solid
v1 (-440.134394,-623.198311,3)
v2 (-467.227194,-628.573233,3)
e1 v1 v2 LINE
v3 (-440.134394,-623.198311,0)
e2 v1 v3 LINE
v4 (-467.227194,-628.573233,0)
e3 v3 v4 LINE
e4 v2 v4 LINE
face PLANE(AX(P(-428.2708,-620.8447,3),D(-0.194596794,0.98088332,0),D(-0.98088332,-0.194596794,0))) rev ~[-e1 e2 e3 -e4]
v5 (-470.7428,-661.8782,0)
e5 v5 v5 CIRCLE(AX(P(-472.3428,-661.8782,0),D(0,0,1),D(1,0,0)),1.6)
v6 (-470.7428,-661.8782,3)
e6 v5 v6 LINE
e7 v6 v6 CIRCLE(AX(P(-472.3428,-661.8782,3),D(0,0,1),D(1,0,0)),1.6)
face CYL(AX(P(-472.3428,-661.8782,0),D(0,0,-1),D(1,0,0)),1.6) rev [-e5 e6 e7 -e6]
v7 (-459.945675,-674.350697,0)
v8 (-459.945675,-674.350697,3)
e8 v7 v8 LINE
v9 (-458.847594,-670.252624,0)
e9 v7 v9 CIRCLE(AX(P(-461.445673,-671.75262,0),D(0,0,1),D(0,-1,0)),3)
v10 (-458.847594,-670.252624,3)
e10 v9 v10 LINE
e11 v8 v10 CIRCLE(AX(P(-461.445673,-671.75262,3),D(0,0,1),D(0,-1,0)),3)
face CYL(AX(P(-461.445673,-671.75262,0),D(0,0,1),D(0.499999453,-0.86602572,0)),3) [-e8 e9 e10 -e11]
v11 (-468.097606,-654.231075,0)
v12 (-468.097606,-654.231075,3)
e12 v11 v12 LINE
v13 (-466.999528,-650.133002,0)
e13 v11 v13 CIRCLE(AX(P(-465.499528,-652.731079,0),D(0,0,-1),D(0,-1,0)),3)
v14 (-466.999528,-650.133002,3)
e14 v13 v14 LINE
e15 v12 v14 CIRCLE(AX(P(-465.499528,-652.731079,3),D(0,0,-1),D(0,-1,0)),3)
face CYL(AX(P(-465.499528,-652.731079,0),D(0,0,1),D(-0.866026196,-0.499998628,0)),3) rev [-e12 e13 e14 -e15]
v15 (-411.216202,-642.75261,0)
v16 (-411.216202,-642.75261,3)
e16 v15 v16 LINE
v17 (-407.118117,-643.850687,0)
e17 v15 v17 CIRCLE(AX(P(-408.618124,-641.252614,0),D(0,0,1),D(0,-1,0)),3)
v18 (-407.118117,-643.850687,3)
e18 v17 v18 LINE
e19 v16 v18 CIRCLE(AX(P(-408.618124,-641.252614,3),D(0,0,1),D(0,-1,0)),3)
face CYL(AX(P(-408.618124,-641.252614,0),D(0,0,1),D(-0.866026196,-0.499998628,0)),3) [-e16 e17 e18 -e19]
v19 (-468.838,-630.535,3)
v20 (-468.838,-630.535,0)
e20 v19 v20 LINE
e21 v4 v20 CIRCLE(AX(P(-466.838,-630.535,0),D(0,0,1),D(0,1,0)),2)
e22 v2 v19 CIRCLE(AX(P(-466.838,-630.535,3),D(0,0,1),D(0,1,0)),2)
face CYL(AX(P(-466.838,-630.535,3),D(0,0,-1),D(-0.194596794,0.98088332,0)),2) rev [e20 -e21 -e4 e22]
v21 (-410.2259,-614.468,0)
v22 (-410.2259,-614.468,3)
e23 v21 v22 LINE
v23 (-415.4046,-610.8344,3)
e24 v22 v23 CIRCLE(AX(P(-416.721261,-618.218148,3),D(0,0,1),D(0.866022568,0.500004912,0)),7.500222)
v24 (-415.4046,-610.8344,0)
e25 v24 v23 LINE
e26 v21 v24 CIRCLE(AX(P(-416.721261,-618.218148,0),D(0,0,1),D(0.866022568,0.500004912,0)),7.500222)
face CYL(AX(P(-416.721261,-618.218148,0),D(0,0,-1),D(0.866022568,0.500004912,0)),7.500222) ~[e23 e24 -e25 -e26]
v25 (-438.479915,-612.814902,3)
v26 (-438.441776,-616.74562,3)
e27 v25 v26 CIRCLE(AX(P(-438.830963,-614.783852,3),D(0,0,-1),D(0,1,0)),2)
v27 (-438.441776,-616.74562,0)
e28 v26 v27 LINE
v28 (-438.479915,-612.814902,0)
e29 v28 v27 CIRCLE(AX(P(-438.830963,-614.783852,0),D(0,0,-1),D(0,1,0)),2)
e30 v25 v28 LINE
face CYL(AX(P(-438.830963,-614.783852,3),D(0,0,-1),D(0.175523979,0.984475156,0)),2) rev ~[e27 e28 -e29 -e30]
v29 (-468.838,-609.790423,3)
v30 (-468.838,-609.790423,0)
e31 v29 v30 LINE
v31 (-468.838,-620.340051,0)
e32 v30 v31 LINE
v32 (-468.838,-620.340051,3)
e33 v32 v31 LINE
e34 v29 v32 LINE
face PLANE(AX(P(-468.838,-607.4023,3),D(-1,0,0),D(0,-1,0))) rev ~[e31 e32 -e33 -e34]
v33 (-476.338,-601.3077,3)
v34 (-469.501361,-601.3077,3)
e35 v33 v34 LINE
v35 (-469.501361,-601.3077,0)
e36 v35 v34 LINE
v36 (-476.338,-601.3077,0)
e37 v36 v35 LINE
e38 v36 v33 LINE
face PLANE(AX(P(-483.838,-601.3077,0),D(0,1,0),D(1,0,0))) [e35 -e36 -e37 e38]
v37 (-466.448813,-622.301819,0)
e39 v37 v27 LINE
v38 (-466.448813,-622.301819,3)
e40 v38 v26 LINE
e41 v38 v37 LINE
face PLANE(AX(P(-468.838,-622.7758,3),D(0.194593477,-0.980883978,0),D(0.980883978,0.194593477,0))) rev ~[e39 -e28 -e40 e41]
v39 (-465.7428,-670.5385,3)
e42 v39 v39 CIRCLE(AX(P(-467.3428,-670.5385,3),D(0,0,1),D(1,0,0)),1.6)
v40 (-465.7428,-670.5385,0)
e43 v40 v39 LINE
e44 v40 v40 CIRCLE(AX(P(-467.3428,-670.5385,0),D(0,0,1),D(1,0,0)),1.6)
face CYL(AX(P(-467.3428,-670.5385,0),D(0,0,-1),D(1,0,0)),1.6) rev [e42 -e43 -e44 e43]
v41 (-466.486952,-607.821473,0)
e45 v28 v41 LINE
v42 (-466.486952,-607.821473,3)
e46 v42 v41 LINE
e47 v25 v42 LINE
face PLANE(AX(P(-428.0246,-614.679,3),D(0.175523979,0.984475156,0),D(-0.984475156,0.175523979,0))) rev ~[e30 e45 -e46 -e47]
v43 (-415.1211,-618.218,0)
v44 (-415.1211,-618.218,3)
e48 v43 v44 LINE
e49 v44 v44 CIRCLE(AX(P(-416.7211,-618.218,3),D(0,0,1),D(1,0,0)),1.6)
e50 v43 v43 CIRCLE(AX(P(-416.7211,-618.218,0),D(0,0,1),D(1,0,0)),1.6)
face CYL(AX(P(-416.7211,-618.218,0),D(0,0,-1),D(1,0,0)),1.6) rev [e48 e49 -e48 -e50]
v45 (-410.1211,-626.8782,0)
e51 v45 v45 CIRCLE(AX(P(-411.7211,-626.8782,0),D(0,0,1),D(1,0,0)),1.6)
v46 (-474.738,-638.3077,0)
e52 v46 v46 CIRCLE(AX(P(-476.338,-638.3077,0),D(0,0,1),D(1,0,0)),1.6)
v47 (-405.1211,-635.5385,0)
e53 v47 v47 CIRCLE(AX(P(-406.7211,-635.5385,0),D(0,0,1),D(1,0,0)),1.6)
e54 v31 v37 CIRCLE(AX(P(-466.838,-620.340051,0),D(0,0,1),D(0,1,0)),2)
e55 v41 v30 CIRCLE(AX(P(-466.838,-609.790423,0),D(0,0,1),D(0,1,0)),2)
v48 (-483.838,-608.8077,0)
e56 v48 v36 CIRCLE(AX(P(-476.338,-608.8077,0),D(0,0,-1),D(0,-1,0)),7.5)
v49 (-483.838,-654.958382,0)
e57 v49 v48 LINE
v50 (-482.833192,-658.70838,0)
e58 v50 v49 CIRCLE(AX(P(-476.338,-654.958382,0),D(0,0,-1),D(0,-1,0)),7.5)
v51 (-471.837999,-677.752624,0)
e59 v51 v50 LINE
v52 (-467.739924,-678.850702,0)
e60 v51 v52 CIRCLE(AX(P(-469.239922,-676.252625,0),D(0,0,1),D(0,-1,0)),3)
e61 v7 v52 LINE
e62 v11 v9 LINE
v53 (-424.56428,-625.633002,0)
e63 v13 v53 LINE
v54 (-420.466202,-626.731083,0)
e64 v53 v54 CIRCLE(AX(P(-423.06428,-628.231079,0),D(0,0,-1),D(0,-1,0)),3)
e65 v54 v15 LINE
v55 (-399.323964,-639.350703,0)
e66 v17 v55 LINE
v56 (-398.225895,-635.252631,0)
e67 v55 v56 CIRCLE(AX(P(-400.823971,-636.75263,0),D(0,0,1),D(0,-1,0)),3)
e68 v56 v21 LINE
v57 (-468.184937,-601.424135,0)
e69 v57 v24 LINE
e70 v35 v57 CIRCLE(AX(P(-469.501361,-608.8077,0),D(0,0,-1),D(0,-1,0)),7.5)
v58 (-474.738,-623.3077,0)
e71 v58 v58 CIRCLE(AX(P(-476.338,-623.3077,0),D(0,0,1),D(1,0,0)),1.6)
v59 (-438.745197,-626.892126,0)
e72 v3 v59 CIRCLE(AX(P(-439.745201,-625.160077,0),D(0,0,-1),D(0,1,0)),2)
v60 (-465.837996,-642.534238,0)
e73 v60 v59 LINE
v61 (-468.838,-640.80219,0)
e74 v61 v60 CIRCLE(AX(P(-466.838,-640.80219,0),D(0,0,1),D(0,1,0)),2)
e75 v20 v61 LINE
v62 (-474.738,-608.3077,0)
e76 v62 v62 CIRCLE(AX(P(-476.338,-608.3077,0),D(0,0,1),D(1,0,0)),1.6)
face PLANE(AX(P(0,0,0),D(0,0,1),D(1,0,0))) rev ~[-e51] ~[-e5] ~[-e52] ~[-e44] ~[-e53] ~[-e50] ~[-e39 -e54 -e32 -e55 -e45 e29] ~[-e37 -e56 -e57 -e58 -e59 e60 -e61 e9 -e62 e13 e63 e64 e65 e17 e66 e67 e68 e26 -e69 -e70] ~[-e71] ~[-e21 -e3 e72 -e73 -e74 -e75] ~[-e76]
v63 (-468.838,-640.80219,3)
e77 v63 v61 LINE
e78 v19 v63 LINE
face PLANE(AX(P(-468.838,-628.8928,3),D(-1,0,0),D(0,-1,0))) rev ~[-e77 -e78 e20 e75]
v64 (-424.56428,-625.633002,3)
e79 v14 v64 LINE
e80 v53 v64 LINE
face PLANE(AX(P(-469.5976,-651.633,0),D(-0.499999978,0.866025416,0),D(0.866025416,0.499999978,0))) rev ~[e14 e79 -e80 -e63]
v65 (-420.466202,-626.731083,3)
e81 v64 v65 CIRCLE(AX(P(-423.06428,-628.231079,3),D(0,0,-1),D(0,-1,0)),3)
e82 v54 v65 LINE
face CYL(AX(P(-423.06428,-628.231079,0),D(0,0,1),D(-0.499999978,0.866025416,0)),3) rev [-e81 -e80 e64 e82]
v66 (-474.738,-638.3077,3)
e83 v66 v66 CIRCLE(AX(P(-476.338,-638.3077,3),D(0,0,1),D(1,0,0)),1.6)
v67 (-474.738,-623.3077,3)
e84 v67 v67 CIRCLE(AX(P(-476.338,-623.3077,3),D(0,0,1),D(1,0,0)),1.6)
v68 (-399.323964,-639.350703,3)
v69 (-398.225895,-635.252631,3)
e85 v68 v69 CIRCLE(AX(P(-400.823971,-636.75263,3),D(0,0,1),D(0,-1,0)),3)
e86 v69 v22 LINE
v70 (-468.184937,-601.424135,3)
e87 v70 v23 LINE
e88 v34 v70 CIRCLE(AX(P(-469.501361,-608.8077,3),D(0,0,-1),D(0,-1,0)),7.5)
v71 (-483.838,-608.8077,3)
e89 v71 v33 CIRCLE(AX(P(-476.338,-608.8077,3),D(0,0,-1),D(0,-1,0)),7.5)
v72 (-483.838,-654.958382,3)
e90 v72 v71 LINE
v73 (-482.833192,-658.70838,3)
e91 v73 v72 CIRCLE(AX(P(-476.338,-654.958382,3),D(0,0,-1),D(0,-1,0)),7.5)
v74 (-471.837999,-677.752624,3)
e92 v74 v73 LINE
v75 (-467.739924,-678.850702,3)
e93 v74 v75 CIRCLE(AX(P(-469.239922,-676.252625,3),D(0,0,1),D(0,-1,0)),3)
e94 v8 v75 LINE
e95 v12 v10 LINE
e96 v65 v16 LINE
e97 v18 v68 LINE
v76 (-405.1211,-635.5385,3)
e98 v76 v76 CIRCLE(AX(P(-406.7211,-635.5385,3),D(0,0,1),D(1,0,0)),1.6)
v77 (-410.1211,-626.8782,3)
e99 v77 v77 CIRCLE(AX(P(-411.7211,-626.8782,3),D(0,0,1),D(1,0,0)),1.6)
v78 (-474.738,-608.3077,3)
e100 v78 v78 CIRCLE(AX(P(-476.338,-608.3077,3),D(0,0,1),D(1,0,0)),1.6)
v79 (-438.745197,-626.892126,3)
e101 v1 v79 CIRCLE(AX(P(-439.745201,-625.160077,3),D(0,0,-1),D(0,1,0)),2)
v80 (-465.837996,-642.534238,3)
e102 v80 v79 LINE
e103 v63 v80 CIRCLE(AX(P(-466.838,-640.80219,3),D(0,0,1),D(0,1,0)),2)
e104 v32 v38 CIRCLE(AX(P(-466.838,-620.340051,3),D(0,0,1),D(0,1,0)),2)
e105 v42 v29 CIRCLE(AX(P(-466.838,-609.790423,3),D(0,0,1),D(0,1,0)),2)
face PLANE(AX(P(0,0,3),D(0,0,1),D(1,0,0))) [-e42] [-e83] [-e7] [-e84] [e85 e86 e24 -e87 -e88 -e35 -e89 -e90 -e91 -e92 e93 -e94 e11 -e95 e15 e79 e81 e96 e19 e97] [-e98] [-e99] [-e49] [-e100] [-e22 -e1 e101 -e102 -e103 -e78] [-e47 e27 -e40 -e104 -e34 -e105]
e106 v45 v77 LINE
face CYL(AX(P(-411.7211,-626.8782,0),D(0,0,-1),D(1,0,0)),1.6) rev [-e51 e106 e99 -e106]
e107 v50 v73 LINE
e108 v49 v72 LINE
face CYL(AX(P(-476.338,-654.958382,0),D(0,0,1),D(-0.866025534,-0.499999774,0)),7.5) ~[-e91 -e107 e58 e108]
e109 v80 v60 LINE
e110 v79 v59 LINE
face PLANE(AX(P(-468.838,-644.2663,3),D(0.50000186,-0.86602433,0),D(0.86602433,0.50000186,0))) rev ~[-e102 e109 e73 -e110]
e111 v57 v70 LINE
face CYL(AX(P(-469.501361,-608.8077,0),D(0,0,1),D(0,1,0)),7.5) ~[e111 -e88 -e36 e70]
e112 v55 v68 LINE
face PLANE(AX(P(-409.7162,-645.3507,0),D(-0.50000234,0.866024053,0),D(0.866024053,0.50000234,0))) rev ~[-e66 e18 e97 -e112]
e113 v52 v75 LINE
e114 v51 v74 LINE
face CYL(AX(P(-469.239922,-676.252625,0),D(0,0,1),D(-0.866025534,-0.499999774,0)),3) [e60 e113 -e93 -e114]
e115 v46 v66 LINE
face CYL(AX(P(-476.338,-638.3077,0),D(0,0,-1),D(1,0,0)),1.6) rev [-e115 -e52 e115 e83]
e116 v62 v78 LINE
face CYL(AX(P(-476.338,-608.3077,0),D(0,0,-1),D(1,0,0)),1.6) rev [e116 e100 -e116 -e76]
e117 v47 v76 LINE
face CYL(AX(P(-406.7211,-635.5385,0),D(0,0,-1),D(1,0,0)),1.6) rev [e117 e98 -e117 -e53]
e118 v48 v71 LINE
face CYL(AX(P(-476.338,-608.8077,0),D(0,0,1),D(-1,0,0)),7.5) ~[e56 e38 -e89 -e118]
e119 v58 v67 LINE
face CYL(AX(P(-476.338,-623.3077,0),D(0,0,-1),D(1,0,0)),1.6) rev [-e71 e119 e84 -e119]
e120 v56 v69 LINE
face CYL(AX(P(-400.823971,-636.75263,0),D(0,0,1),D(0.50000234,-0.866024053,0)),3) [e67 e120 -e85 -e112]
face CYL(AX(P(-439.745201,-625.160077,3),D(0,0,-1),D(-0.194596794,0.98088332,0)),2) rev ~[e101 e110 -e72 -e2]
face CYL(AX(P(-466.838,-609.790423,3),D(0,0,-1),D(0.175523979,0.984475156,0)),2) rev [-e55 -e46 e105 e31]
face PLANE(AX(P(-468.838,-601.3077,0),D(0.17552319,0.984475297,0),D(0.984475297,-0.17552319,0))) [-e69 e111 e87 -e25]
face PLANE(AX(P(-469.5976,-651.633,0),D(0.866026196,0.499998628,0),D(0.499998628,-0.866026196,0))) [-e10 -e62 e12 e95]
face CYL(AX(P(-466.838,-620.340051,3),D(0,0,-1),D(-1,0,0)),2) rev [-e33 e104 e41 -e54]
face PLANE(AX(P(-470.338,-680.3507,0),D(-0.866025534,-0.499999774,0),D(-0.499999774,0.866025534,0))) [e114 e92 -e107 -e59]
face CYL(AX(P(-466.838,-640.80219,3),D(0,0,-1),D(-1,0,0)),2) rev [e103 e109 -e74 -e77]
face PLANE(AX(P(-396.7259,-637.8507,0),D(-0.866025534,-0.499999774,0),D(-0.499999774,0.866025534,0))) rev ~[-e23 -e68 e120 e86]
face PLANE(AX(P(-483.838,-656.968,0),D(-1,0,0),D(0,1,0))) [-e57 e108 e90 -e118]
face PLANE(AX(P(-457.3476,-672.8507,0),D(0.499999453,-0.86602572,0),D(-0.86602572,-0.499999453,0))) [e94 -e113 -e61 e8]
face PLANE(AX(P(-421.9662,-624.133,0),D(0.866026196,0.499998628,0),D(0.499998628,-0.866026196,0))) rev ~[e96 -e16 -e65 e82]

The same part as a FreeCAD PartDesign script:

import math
import FreeCAD as App
import Part
import Sketcher

V = App.Vector
Q = App.Units.Quantity


def edges_at(feature, points):
    """Names of the edges that pass closest to the given points."""
    edges = feature.Shape.Edges
    near = lambda p: min(range(len(edges)), key=lambda i: edges[i].distToShape(Part.Vertex(*p))[0])
    return sorted({f"Edge{near(p) + 1}" for p in points})


def add_polygon(sketch, points):
    """Adds a closed chain of lines whose ends are joined by coincident constraints."""
    first, n = sketch.GeometryCount, len(points)
    for a, b in zip(points, points[1:] + points[:1]):
        sketch.addGeometry(Part.LineSegment(App.Vector(*a, 0), App.Vector(*b, 0)), False)
    for i in range(n):
        sketch.addConstraint(Sketcher.Constraint("Coincident", first + i, 2, first + (i + 1) % n, 1))

doc = App.newDocument("Part")
body = doc.addObject("PartDesign::Body", "Body")

sketch1 = body.newObject("Sketcher::SketchObject", "Sketch")
sketch1.AttachmentSupport = (doc.getObject("XY_Plane"), [""])
sketch1.MapMode = "FlatFace"
sketch1.addGeometry([
    Part.LineSegment(V(-422, -624.1, 0), V(-409.7, -645.4, 0)),
    Part.LineSegment(V(-409.7, -645.4, 0), V(-396.7, -637.9, 0)),
    Part.LineSegment(V(-396.7, -637.9, 0), V(-410.2, -614.5, 0)),
    Part.ArcOfCircle(Part.Circle(V(-416.7, -618.2, 0), V(0, 0, 1), 7.5), math.radians(30), math.radians(80)),
    Part.LineSegment(V(-415.4, -610.8, 0), V(-468.8, -601.3, 0)),
    Part.LineSegment(V(-468.8, -601.3, 0), V(-483.8, -601.3, 0)),
    Part.LineSegment(V(-483.8, -601.3, 0), V(-483.8, -657, 0)),
    Part.LineSegment(V(-483.8, -657, 0), V(-470.3, -680.4, 0)),
    Part.LineSegment(V(-470.3, -680.4, 0), V(-457.3, -672.9, 0)),
    Part.LineSegment(V(-457.3, -672.9, 0), V(-469.6, -651.6, 0)),
    Part.LineSegment(V(-469.6, -651.6, 0), V(-422, -624.1, 0)),
    Part.Circle(V(-467.3, -670.5, 0), V(0, 0, 1), 1.6),
    Part.Circle(V(-472.3, -661.9, 0), V(0, 0, 1), 1.6),
    Part.Circle(V(-476.3, -638.3, 0), V(0, 0, 1), 1.6),
    Part.Circle(V(-476.3, -623.3, 0), V(0, 0, 1), 1.6),
    Part.Circle(V(-406.7, -635.5, 0), V(0, 0, 1), 1.6),
    Part.Circle(V(-411.7, -626.9, 0), V(0, 0, 1), 1.6),
    Part.Circle(V(-416.7, -618.2, 0), V(0, 0, 1), 1.6),
    Part.Circle(V(-476.3, -608.3, 0), V(0, 0, 1), 1.6),
], False)
sketch1.addConstraint([
    Sketcher.Constraint("Coincident", 0, 2, 1, 1),
    Sketcher.Constraint("Coincident", 1, 2, 2, 1),
    Sketcher.Constraint("Tangent", 2, 2, 3, 1),
    Sketcher.Constraint("Tangent", 3, 2, 4, 1),
    Sketcher.Constraint("Coincident", 4, 2, 5, 1),
    Sketcher.Constraint("Coincident", 5, 2, 6, 1),
    Sketcher.Constraint("Coincident", 6, 2, 7, 1),
    Sketcher.Constraint("Coincident", 7, 2, 8, 1),
    Sketcher.Constraint("Coincident", 8, 2, 9, 1),
    Sketcher.Constraint("Coincident", 9, 2, 10, 1),
    Sketcher.Constraint("Coincident", 10, 2, 0, 1),
    Sketcher.Constraint("Horizontal", 5),
    Sketcher.Constraint("Vertical", 6),
    Sketcher.Constraint("Coincident", 17, 3, 3, 3),
    Sketcher.Constraint("Equal", 11, 12),
    Sketcher.Constraint("Equal", 12, 13),
    Sketcher.Constraint("Equal", 13, 14),
    Sketcher.Constraint("Equal", 14, 15),
    Sketcher.Constraint("Equal", 15, 16),
    Sketcher.Constraint("Equal", 16, 17),
    Sketcher.Constraint("Equal", 17, 18),
    Sketcher.Constraint("Perpendicular", 0, 1),
    Sketcher.Constraint("Perpendicular", 1, 2),
    Sketcher.Constraint("Parallel", 2, 7),
    Sketcher.Constraint("Perpendicular", 7, 8),
    Sketcher.Constraint("Perpendicular", 8, 9),
    Sketcher.Constraint("Perpendicular", 9, 10),
    Sketcher.Constraint("Vertical", 13, 3, 14, 3),
    Sketcher.Constraint("Vertical", 14, 3, 18, 3),
    Sketcher.Constraint("Equal", 2, 7),
    Sketcher.Constraint("Equal", 1, 8),
    Sketcher.Constraint("Equal", 0, 9),
    Sketcher.Constraint("Diameter", 11, Q("3.2 mm")),
    Sketcher.Constraint("Radius", 3, Q("7.5 mm")),
    Sketcher.Constraint("DistanceX", 5, 2, 5, 1, Q("15 mm")),
    Sketcher.Constraint("Distance", 1, Q("15 mm")),
    Sketcher.Constraint("DistanceY", 13, 3, 14, 3, Q("15 mm")),
    Sketcher.Constraint("DistanceX", 3, 3, 15, 3, Q("10 mm")),
    Sketcher.Constraint("DistanceY", 11, 3, 15, 3, Q("35 mm")),
    Sketcher.Constraint("DistanceY", 12, 3, 16, 3, Q("35 mm")),
    Sketcher.Constraint("DistanceY", 14, 3, 18, 3, Q("15 mm")),
    Sketcher.Constraint("DistanceY", 18, 3, 4, 2, Q("7 mm")),
    Sketcher.Constraint("DistanceY", 0, 2, 1, 2, Q("7.5 mm")),
    Sketcher.Constraint("DistanceX", 18, 3, 4, 2, Q("7.5 mm")),
    Sketcher.Constraint("Distance", 2, Q("27 mm")),
    Sketcher.Constraint("Distance", 10, Q("55 mm")),
    Sketcher.Constraint("DistanceX", 12, 3, 11, 3, Q("5 mm")),
    Sketcher.Constraint("DistanceX", 3, 3, 16, 3, Q("5 mm")),
    Sketcher.Constraint("Distance", 0, Q("24.5 mm")),
    Sketcher.Constraint("Angle", 4, Q("169.891 deg")),
    Sketcher.Constraint("DistanceX", 3, 3, -1, 1, Q("416.721 mm")),
    Sketcher.Constraint("DistanceY", 3, 3, -1, 1, Q("618.218 mm")),
    Sketcher.Constraint("DistanceY", 15, 3, 3, 2, Q("24.704 mm")),
    Sketcher.Constraint("DistanceX", 11, 3, -1, 1, Q("467.3428 mm")),
    Sketcher.Constraint("DistanceY", 12, 3, -1, 1, Q("661.8782 mm")),
])
pad1 = body.newObject("PartDesign::Pad", "Pad")
pad1.Profile = sketch1
pad1.Length = 3
doc.recompute()

fillet = body.newObject("PartDesign::Fillet", "Fillet")
fillet.Base = (pad1, edges_at(pad1, [(-483.838, -601.308, 1.5), (-468.838, -601.308, 1.5), (-483.838, -656.968, 1.5)]))
fillet.Radius = 7.5
doc.recompute()

fillet2 = body.newObject("PartDesign::Fillet", "Fillet001")
fillet2.Base = (fillet, edges_at(fillet, [
    (-470.338, -680.351, 1.5),
    (-457.348, -672.851, 1.5),
    (-469.598, -651.633, 1.5),
    (-421.966, -624.133, 1.5),
    (-409.716, -645.351, 1.5),
    (-396.726, -637.851, 1.5),
]))
fillet2.Radius = 3

sketch2 = body.newObject("Sketcher::SketchObject", "Sketch001")
sketch2.AttachmentSupport = (doc.getObject("XY_Plane"), [""])
sketch2.MapMode = "FlatFace"
sketch2.AttachmentOffset = App.Placement(V(0, 0, 3), App.Rotation())
add_polygon(sketch2, [(-428, -615), (-469, -607), (-469, -623)])
add_polygon(sketch2, [(-428, -621), (-469, -629), (-469, -644)])
sketch2.addConstraint([
    Sketcher.Constraint("Vertical", 1),
    Sketcher.Constraint("Vertical", 4),
    Sketcher.Constraint("Parallel", 2, 3),
    Sketcher.Constraint("Vertical", 1, 2, 3, 2),
    Sketcher.Constraint("Equal", 1, 4),
    Sketcher.Constraint("Angle", 5, Q("30.0001 deg")),
    Sketcher.Constraint("Angle", 0, Q("169.8908 deg")),
    Sketcher.Constraint("Angle", 2, Q("11.221 deg")),
    Sketcher.Constraint("Distance", 0, Q("41.457 mm")),
    Sketcher.Constraint("DistanceX", 0, 2, -1, 1, Q("468.838 mm")),
    Sketcher.Constraint("DistanceY", 2, 2, -1, 1, Q("614.679 mm")),
    Sketcher.Constraint("DistanceY", 3, 2, 1, 2, Q("6.117 mm")),
])
pocket1 = body.newObject("PartDesign::Pocket", "Pocket")
pocket1.Profile = sketch2
pocket1.Length = 10
doc.recompute()

fillet3 = body.newObject("PartDesign::Fillet", "Fillet002")
fillet3.Base = (pocket1, edges_at(pocket1, [
    (-468.838, -607.402, 1.5),
    (-468.838, -622.776, 1.5),
    (-428.025, -614.679, 1.5),
    (-428.271, -620.845, 1.5),
    (-468.838, -628.893, 1.5),
    (-468.838, -644.266, 1.5),
]))
fillet3.Radius = 2

doc.recompute()
